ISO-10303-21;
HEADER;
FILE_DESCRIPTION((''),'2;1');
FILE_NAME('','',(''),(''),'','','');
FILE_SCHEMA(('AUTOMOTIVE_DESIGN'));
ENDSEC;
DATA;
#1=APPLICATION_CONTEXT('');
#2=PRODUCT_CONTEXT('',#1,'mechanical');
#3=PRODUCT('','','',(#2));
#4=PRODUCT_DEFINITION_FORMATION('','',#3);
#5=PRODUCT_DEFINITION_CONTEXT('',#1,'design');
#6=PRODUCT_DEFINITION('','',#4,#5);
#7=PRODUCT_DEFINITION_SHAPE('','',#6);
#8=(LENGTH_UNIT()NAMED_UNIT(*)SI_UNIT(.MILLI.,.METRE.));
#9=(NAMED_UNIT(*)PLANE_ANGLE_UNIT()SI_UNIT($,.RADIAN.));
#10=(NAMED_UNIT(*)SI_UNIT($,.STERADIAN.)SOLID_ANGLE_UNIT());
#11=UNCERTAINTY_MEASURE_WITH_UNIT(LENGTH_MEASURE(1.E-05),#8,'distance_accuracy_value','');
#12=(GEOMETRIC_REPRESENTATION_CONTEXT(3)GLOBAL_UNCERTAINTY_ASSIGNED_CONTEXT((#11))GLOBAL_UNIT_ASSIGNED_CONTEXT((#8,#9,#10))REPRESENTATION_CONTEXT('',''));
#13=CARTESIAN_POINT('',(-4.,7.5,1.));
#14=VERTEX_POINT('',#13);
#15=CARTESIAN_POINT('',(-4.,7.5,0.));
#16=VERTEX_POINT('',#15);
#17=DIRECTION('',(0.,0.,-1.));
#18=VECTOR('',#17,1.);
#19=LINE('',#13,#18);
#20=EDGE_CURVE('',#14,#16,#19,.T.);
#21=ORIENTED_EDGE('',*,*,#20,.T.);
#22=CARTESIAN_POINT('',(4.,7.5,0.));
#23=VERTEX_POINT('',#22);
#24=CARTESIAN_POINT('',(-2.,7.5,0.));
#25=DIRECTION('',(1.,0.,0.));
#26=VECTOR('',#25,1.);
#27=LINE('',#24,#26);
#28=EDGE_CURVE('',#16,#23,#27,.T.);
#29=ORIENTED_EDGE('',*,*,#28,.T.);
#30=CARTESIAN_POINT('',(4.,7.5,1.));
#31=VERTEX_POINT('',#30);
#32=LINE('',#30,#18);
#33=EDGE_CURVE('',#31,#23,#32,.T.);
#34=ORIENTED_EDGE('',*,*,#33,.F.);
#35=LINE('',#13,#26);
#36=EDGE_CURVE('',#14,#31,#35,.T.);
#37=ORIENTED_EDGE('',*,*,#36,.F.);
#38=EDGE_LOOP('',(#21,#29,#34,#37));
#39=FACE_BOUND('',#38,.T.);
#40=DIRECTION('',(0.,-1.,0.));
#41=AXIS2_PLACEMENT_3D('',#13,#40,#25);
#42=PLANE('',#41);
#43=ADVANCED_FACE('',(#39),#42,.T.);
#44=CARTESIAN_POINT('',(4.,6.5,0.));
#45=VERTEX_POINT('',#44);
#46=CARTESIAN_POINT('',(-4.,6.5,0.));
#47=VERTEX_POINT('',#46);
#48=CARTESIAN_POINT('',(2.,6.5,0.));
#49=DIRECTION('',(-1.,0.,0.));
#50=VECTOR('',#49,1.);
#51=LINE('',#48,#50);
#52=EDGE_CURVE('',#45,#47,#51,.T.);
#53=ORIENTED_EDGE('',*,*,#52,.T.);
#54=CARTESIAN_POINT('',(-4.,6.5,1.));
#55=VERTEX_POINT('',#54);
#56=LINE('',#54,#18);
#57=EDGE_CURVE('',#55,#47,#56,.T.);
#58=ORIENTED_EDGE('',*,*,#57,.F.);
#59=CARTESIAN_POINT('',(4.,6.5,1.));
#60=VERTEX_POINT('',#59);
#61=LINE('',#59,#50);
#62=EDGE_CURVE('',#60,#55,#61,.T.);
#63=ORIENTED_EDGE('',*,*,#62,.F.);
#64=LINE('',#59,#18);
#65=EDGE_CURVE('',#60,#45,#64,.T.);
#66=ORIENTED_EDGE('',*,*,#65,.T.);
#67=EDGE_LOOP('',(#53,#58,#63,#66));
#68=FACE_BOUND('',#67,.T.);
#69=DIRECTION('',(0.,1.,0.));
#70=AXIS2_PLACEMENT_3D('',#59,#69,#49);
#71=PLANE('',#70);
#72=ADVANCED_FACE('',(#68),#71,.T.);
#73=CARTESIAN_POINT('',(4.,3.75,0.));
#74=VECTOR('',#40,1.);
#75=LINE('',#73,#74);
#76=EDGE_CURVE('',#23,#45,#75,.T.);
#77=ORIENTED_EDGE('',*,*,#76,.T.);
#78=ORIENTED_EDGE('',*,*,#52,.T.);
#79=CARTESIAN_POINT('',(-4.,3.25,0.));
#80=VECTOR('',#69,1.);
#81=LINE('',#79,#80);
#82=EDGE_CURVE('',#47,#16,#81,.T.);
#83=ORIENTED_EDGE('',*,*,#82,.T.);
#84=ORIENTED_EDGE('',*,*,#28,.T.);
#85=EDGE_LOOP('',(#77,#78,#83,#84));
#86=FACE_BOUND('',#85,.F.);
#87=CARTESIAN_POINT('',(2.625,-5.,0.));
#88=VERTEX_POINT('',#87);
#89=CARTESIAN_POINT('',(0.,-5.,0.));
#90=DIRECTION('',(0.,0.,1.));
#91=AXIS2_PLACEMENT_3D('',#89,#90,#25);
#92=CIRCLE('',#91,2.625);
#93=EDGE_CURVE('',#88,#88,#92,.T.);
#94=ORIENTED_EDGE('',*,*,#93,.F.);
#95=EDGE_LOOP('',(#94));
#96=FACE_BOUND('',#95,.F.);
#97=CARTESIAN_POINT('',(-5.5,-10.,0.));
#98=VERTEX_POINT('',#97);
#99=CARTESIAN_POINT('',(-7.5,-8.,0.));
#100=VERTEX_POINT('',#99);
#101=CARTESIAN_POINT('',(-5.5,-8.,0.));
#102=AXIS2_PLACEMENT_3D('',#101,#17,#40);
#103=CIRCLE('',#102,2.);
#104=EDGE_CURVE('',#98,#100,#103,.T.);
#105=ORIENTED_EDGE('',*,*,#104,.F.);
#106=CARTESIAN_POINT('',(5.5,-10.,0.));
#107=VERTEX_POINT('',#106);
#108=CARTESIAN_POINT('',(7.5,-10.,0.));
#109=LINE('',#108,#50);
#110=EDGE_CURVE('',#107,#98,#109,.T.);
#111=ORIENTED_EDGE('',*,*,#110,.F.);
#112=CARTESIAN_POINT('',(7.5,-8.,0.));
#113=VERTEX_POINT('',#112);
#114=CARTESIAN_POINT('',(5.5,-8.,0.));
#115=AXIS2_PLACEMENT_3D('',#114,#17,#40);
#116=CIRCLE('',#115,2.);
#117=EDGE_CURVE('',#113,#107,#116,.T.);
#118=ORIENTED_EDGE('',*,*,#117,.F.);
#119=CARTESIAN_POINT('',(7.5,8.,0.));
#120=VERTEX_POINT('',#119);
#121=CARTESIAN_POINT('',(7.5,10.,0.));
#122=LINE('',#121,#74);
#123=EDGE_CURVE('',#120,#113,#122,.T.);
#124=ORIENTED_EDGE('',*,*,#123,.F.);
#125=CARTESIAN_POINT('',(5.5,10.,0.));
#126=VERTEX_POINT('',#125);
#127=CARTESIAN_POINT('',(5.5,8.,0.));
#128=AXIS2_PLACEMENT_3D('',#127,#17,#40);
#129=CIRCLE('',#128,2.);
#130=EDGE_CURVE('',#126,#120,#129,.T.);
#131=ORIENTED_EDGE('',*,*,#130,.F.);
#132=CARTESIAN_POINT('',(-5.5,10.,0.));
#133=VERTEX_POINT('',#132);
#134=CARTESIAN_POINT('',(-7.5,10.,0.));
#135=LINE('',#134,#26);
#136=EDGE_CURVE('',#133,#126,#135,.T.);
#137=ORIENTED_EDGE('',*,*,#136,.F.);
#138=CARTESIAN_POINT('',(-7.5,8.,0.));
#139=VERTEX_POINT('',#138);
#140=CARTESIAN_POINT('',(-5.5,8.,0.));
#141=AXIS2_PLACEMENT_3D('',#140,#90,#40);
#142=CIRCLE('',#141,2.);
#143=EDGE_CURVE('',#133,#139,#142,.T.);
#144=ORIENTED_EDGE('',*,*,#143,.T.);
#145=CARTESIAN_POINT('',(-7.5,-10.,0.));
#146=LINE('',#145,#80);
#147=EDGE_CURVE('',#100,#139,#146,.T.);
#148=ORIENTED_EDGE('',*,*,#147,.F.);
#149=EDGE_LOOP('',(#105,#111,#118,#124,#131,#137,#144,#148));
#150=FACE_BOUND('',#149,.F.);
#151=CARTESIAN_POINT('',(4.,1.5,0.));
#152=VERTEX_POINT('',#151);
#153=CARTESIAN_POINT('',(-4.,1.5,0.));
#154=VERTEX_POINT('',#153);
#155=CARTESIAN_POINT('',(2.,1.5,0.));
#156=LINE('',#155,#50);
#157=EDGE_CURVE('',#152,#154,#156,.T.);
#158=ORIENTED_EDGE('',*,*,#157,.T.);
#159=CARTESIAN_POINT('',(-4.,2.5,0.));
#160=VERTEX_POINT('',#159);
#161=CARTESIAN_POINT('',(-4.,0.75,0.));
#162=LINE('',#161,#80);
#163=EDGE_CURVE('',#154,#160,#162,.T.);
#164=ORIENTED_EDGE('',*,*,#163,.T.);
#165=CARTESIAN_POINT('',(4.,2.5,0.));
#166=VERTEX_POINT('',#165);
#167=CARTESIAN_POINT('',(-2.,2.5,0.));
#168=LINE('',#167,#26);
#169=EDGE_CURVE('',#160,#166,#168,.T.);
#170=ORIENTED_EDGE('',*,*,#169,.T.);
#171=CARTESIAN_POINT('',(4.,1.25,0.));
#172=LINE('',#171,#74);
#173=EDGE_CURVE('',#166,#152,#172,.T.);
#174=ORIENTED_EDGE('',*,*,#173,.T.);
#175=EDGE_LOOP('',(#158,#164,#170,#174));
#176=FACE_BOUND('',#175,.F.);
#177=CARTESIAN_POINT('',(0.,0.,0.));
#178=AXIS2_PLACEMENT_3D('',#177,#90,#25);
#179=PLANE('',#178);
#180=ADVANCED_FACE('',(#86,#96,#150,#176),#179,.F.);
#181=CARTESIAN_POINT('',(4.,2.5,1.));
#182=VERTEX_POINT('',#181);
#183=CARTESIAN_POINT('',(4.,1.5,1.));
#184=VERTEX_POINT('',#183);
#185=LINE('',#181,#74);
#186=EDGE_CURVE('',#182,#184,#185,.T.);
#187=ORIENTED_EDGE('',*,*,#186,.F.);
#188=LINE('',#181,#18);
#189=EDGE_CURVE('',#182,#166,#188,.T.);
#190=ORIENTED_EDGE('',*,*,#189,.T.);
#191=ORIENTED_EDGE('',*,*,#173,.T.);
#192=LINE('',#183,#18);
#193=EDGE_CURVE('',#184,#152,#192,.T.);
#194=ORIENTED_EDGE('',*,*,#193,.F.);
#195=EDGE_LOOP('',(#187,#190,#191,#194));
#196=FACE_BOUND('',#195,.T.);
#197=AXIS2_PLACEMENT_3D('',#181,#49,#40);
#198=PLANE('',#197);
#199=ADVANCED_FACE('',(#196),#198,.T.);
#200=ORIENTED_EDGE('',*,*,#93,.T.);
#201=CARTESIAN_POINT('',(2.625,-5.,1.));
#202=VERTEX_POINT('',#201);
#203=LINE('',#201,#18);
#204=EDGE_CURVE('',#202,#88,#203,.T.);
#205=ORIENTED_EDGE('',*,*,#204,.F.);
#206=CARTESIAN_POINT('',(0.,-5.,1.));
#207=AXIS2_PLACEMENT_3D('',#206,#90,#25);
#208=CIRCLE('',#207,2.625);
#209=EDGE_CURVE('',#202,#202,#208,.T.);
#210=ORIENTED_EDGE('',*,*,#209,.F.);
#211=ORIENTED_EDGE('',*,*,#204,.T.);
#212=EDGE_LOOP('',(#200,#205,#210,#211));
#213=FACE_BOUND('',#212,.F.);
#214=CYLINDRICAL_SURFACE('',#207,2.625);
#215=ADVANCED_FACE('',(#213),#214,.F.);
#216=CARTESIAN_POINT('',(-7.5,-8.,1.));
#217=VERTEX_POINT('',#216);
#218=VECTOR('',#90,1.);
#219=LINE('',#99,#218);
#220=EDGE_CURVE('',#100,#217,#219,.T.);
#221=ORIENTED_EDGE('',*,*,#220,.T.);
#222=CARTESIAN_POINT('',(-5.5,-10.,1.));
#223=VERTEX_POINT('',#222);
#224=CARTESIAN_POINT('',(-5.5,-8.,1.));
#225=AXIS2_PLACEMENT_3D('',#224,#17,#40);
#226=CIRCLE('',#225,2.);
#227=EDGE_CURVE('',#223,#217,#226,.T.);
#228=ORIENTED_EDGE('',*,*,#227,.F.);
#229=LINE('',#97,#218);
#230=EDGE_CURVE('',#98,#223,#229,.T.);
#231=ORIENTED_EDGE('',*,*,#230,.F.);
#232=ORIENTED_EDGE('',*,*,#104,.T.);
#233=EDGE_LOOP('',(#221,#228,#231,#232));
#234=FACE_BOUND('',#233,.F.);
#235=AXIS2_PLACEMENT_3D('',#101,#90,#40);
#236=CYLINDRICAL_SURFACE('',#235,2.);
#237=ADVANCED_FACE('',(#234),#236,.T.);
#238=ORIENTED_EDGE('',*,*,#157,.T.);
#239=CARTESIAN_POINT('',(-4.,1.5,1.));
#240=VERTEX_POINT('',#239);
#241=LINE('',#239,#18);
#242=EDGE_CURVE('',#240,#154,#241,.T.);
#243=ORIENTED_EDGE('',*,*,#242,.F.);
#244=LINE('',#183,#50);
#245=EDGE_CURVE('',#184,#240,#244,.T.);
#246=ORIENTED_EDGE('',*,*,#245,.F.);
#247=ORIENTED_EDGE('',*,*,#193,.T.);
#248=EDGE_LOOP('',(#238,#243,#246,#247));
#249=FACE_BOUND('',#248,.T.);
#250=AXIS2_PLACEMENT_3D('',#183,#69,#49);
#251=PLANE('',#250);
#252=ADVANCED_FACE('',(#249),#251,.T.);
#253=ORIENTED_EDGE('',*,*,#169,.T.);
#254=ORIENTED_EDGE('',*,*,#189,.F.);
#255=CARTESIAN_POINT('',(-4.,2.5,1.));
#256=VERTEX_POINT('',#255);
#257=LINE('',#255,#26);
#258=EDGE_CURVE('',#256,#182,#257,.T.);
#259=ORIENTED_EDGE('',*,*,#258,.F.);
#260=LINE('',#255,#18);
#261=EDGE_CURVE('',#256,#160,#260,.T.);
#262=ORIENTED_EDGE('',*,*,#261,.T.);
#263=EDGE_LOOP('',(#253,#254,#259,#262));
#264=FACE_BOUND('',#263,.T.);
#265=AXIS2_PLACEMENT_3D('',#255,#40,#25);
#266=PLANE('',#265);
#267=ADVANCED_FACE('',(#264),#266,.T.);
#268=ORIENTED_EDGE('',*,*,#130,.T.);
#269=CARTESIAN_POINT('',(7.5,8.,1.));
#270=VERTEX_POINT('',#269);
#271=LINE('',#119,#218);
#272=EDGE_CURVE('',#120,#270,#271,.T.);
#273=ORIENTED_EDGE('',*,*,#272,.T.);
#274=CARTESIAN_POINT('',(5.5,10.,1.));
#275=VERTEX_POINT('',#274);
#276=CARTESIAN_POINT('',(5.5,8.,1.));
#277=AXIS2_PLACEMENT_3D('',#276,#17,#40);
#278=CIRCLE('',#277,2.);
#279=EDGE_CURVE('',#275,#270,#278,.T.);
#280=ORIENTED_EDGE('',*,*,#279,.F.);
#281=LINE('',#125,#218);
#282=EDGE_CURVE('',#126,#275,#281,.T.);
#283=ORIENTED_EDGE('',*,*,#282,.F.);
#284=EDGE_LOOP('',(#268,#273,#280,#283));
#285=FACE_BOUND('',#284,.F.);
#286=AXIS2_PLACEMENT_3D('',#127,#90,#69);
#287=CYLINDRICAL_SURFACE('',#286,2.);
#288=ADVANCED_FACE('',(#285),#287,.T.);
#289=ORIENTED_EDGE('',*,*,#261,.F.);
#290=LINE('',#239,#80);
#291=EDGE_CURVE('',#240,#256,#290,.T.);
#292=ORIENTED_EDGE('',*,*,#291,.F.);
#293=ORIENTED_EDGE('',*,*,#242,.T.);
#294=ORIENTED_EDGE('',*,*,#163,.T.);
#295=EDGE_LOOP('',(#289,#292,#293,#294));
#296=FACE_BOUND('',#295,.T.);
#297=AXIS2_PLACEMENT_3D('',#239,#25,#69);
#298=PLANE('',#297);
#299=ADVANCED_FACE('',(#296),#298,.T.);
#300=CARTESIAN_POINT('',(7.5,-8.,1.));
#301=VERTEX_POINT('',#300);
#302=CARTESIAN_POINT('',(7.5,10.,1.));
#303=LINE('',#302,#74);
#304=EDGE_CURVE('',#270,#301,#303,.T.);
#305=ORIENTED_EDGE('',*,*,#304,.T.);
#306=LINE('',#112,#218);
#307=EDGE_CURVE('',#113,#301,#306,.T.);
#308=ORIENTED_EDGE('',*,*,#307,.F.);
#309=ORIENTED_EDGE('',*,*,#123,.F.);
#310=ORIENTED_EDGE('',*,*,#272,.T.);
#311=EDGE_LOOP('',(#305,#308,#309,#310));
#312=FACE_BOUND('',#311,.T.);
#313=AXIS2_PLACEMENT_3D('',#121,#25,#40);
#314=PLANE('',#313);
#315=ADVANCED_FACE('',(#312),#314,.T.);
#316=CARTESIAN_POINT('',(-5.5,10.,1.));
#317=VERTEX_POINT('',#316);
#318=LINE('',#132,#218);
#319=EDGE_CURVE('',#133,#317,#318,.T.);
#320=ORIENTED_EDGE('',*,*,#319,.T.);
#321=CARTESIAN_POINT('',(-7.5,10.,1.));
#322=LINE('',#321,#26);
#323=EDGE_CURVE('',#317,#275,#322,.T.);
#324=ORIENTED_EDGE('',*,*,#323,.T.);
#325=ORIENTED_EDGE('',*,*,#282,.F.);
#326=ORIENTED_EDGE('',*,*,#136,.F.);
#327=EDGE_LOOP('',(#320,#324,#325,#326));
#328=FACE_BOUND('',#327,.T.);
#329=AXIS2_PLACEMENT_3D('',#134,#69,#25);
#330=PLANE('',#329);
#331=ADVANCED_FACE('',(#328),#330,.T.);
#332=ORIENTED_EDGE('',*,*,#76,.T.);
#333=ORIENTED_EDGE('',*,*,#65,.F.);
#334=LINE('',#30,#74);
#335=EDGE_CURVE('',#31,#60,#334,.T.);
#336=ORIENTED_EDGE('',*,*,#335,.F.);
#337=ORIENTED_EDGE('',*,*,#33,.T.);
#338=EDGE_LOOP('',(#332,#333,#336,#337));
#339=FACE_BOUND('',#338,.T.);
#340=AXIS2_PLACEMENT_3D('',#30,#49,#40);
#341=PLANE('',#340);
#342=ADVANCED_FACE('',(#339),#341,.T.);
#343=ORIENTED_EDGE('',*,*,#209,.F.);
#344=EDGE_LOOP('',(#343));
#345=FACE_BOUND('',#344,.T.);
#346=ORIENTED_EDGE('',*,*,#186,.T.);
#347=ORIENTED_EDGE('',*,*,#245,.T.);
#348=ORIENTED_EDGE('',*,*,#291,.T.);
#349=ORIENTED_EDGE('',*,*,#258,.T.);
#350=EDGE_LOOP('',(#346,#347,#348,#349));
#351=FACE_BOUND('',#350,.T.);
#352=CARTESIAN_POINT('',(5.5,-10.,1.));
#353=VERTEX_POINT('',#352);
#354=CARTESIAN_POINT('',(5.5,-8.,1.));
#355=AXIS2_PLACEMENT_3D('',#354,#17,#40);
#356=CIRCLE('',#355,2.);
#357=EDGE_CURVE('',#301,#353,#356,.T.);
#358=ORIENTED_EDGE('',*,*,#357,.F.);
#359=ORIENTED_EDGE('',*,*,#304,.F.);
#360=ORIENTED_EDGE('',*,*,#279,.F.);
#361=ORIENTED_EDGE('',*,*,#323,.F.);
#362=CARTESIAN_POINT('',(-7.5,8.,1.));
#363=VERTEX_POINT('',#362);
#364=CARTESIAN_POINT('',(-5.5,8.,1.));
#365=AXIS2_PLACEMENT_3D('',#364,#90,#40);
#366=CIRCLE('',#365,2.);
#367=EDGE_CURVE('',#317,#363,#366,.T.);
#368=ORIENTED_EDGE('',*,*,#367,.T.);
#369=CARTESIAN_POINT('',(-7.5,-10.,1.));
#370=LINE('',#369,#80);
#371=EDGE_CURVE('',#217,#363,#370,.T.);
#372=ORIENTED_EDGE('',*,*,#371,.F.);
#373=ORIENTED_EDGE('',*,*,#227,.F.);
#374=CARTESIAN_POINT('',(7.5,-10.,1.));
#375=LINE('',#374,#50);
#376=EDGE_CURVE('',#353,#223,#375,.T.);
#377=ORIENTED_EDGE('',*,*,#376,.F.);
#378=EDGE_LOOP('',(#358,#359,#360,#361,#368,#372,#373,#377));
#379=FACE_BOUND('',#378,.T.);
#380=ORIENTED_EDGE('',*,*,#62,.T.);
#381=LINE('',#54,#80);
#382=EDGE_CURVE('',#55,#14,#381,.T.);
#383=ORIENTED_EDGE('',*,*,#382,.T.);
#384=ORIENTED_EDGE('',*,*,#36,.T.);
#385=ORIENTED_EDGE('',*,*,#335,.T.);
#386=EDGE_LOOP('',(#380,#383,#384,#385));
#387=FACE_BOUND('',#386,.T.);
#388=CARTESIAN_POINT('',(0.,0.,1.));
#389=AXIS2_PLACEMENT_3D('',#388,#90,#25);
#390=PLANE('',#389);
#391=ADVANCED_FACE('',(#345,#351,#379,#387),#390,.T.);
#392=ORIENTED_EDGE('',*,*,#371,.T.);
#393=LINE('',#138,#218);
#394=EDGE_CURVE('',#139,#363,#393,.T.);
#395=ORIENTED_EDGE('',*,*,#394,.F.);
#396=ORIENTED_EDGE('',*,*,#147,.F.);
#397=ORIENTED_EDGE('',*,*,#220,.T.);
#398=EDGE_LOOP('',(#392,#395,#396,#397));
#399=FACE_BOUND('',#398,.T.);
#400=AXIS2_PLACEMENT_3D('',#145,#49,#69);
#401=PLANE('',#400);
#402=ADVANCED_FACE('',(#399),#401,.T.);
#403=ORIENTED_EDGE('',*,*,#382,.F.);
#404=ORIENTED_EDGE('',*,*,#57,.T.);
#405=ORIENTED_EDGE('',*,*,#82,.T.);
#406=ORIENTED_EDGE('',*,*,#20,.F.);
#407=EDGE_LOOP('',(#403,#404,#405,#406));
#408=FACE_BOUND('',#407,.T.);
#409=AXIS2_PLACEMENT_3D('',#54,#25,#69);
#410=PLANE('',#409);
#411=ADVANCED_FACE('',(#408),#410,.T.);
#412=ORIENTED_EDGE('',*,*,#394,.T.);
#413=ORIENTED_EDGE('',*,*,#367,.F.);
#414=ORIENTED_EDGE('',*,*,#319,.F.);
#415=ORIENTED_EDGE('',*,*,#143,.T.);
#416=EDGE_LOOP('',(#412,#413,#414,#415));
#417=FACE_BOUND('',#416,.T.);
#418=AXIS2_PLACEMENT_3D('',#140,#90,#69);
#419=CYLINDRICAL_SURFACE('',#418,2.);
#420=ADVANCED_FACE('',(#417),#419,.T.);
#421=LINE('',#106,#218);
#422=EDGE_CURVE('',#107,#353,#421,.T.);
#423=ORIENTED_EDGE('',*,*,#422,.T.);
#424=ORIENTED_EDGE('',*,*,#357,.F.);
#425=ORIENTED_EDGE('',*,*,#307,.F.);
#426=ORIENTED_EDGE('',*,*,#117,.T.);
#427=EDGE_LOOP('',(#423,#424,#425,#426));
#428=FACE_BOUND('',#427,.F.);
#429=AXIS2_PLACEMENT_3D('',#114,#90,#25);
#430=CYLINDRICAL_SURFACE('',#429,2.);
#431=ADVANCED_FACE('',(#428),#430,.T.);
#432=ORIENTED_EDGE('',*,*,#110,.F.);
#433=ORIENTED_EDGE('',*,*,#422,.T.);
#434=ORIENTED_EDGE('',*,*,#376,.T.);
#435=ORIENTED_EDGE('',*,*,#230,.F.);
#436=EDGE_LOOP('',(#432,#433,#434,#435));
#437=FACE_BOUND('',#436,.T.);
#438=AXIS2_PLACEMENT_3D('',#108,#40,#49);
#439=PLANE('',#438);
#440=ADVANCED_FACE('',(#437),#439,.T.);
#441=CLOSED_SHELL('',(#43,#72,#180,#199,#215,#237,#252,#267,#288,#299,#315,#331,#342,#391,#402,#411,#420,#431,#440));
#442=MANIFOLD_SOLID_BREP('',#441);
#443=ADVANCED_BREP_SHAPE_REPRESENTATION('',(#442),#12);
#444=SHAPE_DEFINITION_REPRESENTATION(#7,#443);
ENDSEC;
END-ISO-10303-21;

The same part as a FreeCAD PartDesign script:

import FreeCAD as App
import Part
import Sketcher
Q = App.Units.Quantity


def edges_at(feature, points):
    """Names of the edges that pass closest to the given points."""
    edges = feature.Shape.Edges
    near = lambda p: min(range(len(edges)), key=lambda i: edges[i].distToShape(Part.Vertex(*p))[0])
    return sorted({f"Edge{near(p) + 1}" for p in points})


def add_polygon(sketch, points):
    """Adds a closed chain of lines whose ends are joined by coincident constraints."""
    first, n = sketch.GeometryCount, len(points)
    for a, b in zip(points, points[1:] + points[:1]):
        sketch.addGeometry(Part.LineSegment(App.Vector(*a, 0), App.Vector(*b, 0)), False)
    for i in range(n):
        sketch.addConstraint(Sketcher.Constraint("Coincident", first + i, 2, first + (i + 1) % n, 1))

doc = App.newDocument("Part")
body = doc.addObject("PartDesign::Body", "Body")

# Sketch on XY plane
sketch1 = body.newObject("Sketcher::SketchObject", "Sketch")
sketch1.AttachmentSupport = (doc.getObject("XY_Plane"), [""])
sketch1.MapMode = "FlatFace"
add_polygon(sketch1, [(7.5, 10), (-7.5, 10), (-7.5, -10), (7.5, -10)])  # lines 0-3
sketch1.addConstraint([
    Sketcher.Constraint("Horizontal", 0),
    Sketcher.Constraint("Vertical", 1),
    Sketcher.Constraint("Horizontal", 2),
    Sketcher.Constraint("Vertical", 3),
    Sketcher.Constraint("Symmetric", 0, 2, 2, 2, -1, 1),
    Sketcher.Constraint("DistanceX", 0, 2, 0, 1, Q("15 mm")),
    Sketcher.Constraint("DistanceY", 1, 2, 1, 1, Q("20 mm")),
])
pad1 = body.newObject("PartDesign::Pad", "Pad")
pad1.Profile = sketch1
pad1.Length = 1
doc.recompute()

fillet = body.newObject("PartDesign::Fillet", "Fillet")
fillet.Base = (pad1, edges_at(pad1, [
    (7.5, 10, 0.5),
    (-7.5, 10, 0.5),
    (7.5, -10, 0.5),
    (-7.5, -10, 0.5),
]))
fillet.Radius = 2

# Sketch on XY plane
sketch2 = body.newObject("Sketcher::SketchObject", "Sketch001")
sketch2.AttachmentSupport = (doc.getObject("XY_Plane"), [""])
sketch2.MapMode = "FlatFace"
sketch2.AttachmentOffset = App.Placement(App.Vector(0, 0, 1), App.Rotation())
add_polygon(sketch2, [(4, 7.5), (-4, 7.5), (-4, 6.5), (4, 6.5)])  # lines 0-3
add_polygon(sketch2, [(4, 2.5), (-4, 2.5), (-4, 1.5), (4, 1.5)])  # lines 4-7
sketch2.addGeometry(Part.Circle(App.Vector(0, -5, 0), App.Vector(0, 0, 1), 2.625), False)  # 8
sketch2.addConstraint([
    Sketcher.Constraint("Horizontal", 0),
    Sketcher.Constraint("Vertical", 1),
    Sketcher.Constraint("Horizontal", 2),
    Sketcher.Constraint("Vertical", 3),
    Sketcher.Constraint("Horizontal", 4),
    Sketcher.Constraint("Vertical", 5),
    Sketcher.Constraint("Horizontal", 6),
    Sketcher.Constraint("Vertical", 7),
    Sketcher.Constraint("PointOnObject", 8, 3, -2),
    Sketcher.Constraint("Vertical", 1, 2, 4, 2),
    Sketcher.Constraint("Vertical", 3, 2, 6, 2),
    Sketcher.Constraint("Equal", 3, 5),
    Sketcher.Constraint("Diameter", 8, Q("5.25 mm")),
    Sketcher.Constraint("DistanceX", 0, 2, 0, 1, Q("8 mm")),
    Sketcher.Constraint("DistanceY", 1, 2, 1, 1, Q("1 mm")),
    Sketcher.Constraint("DistanceY", 8, 3, -1, 1, Q("5 mm")),
    Sketcher.Constraint("DistanceX", 0, 2, -1, 1, Q("4 mm")),
    Sketcher.Constraint("DistanceY", 4, 2, 1, 2, Q("4 mm")),
    Sketcher.Constraint("DistanceY", -1, 1, 0, 2, Q("7.5 mm")),
])
pocket1 = body.newObject("PartDesign::Pocket", "Pocket")
pocket1.Profile = sketch2
pocket1.Type = "ThroughAll"

doc.recompute()
